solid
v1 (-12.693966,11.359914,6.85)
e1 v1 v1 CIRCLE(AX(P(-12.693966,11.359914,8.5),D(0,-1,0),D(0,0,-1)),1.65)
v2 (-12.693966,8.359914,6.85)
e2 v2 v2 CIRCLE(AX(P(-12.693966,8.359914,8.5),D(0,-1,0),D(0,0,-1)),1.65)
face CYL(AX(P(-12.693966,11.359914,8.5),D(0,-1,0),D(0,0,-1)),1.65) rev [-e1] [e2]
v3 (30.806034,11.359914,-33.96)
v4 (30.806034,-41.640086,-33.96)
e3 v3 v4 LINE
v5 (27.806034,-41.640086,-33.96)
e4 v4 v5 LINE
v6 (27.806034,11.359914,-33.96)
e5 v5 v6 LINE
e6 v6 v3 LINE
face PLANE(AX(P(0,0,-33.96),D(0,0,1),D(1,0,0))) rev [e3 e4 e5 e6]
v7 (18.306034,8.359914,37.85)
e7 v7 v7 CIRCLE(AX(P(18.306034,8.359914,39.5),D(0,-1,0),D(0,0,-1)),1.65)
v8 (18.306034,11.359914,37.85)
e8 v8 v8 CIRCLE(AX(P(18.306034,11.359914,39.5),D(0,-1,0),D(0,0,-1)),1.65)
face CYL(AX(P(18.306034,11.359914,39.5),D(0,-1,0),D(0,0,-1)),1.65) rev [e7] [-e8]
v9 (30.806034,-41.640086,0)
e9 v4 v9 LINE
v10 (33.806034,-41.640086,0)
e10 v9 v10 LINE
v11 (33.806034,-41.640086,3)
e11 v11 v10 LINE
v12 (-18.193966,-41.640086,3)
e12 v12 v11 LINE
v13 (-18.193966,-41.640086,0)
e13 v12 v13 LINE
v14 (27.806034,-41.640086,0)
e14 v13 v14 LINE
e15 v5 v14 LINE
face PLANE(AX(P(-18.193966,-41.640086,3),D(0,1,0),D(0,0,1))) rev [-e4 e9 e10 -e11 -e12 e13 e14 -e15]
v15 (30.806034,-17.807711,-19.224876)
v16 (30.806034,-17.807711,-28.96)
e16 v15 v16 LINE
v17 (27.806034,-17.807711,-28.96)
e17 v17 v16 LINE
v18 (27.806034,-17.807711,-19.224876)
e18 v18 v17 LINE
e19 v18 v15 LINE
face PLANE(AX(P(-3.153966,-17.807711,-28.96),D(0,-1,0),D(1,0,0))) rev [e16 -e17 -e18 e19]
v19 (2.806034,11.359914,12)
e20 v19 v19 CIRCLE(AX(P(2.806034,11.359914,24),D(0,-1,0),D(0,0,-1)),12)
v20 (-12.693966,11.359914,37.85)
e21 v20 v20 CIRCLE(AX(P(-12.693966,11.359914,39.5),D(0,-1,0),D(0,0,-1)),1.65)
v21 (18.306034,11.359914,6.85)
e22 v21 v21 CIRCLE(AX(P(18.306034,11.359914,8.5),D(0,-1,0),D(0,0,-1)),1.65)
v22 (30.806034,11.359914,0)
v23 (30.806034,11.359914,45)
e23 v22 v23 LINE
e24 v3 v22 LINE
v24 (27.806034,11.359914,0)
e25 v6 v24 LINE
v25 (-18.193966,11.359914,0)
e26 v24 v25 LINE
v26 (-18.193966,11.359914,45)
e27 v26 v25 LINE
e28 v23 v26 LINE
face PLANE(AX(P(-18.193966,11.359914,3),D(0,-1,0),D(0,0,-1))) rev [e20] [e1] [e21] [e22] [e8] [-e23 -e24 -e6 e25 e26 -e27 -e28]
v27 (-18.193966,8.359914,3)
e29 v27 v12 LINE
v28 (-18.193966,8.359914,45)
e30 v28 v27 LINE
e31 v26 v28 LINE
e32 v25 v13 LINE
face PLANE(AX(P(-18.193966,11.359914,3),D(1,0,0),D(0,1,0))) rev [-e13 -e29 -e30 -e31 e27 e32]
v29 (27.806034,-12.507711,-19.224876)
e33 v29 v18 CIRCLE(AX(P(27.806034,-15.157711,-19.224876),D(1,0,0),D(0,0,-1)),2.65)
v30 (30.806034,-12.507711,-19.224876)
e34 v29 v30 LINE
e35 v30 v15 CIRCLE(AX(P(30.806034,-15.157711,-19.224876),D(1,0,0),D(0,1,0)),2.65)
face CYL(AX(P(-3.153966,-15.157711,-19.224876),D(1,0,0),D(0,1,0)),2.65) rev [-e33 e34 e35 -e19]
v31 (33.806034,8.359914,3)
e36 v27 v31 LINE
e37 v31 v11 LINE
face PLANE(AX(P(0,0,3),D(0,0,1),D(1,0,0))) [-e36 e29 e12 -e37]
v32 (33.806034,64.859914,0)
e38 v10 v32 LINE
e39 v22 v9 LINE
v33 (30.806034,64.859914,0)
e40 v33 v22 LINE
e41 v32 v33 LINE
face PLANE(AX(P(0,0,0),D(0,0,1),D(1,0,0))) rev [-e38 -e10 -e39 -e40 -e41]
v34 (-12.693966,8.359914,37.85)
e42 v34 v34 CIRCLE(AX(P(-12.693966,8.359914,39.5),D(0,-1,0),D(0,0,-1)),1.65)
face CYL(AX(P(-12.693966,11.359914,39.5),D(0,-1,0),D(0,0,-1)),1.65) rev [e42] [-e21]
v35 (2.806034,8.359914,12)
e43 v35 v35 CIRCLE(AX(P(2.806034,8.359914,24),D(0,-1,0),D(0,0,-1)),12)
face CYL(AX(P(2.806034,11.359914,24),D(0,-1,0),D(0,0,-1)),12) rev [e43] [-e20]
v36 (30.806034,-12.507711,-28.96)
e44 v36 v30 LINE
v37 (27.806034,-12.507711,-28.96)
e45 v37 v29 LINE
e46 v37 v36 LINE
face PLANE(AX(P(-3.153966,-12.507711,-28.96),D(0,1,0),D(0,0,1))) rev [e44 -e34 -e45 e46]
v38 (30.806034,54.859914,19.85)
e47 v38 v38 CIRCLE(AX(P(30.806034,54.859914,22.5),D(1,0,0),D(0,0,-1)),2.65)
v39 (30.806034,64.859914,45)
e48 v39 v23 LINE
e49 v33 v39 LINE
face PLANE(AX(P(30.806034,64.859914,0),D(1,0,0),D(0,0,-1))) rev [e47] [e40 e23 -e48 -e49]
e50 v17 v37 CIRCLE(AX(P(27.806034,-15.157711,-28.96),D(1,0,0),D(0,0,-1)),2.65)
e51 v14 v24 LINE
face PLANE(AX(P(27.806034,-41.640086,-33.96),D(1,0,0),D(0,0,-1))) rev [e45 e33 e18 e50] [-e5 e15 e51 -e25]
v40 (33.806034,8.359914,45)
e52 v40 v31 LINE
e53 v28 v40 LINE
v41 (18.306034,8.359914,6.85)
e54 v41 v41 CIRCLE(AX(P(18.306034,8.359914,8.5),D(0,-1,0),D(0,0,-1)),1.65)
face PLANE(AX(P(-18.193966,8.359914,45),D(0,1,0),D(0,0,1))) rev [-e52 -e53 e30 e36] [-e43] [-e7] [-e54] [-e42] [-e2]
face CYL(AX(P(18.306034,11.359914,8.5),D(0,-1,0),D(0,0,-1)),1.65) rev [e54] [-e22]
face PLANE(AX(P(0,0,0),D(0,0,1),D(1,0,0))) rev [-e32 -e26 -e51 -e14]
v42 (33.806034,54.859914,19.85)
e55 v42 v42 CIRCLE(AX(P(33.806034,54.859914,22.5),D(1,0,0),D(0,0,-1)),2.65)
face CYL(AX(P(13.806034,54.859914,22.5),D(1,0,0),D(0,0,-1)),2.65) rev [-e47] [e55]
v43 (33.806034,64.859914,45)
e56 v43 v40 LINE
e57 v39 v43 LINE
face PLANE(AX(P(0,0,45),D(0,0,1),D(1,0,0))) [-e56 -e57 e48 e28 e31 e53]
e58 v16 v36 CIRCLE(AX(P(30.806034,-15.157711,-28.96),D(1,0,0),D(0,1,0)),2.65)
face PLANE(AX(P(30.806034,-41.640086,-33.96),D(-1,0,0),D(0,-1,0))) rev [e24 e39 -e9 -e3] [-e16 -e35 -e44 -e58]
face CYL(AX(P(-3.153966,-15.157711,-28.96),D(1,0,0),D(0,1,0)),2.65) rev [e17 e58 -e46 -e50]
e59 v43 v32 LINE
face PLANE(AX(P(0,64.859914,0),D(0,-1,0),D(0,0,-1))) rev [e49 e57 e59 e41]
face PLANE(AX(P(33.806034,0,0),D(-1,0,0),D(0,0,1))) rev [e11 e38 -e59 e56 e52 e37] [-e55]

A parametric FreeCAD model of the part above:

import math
import FreeCAD as App
import Part
import Sketcher
Q = App.Units.Quantity

doc = App.newDocument("Part")
body = doc.addObject("PartDesign::Body", "Body")

sketch1 = doc.addObject("Sketcher::SketchObject", "Sketch")
body.addObject(sketch1)
sketch1.AttachmentSupport = (doc.XY_Plane, [""])
sketch1.MapMode = "FlatFace"
sketch1.addGeometry([
    Part.LineSegment(App.Vector(-18, 11, 0), App.Vector(-18, -42, 0)),
    Part.LineSegment(App.Vector(-18, -42, 0), App.Vector(24, -42, 0)),
    Part.LineSegment(App.Vector(24, -42, 0), App.Vector(24, 11, 0)),
    Part.LineSegment(App.Vector(24, 11, 0), App.Vector(-18, 11, 0)),
], False)
sketch1.addConstraint([
    Sketcher.Constraint("Coincident", 0, 2, 1, 1),
    Sketcher.Constraint("Coincident", 1, 2, 2, 1),
    Sketcher.Constraint("Coincident", 2, 2, 3, 1),
    Sketcher.Constraint("Coincident", 3, 2, 0, 1),
    Sketcher.Constraint("Vertical", 0),
    Sketcher.Constraint("Horizontal", 1),
    Sketcher.Constraint("Vertical", 2),
    Sketcher.Constraint("Horizontal", 3),
    Sketcher.Constraint("DistanceX", 1, 1, 1, 2, Q("42 mm")),
    Sketcher.Constraint("DistanceY", 0, 2, 0, 1, Q("53 mm")),
    Sketcher.Constraint("DistanceX", 0, 2, -1, 1, Q("18.193966 mm")),
    Sketcher.Constraint("DistanceY", 0, 2, -1, 1, Q("41.640086 mm")),
])
pad1 = doc.addObject("PartDesign::Pad", "Pad")
body.addObject(pad1)
pad1.Profile = sketch1
pad1.Length = 3

sketch2 = doc.addObject("Sketcher::SketchObject", "Sketch001")
body.addObject(sketch2)
sketch2.AttachmentSupport = (doc.XY_Plane, [""])
sketch2.MapMode = "FlatFace"
sketch2.AttachmentOffset = App.Placement(App.Vector(0, 0, 3), App.Rotation())
sketch2.addGeometry([
    Part.LineSegment(App.Vector(-18.2, 11.4, 0), App.Vector(-18.2, 8.4, 0)),
    Part.LineSegment(App.Vector(-18.2, 8.4, 0), App.Vector(23.8, 8.4, 0)),
    Part.LineSegment(App.Vector(23.8, 8.4, 0), App.Vector(23.8, 11.4, 0)),
    Part.LineSegment(App.Vector(23.8, 11.4, 0), App.Vector(-18.2, 11.4, 0)),
], False)
sketch2.addConstraint([
    Sketcher.Constraint("Coincident", 0, 2, 1, 1),
    Sketcher.Constraint("Coincident", 1, 2, 2, 1),
    Sketcher.Constraint("Coincident", 2, 2, 3, 1),
    Sketcher.Constraint("Coincident", 3, 2, 0, 1),
    Sketcher.Constraint("Vertical", 0),
    Sketcher.Constraint("Horizontal", 1),
    Sketcher.Constraint("Vertical", 2),
    Sketcher.Constraint("Horizontal", 3),
    Sketcher.Constraint("DistanceX", 1, 1, 1, 2, Q("42 mm")),
    Sketcher.Constraint("DistanceY", 0, 2, 0, 1, Q("3 mm")),
    Sketcher.Constraint("DistanceX", 0, 2, -1, 1, Q("18.193966 mm")),
    Sketcher.Constraint("DistanceY", -1, 1, 0, 2, Q("8.359914 mm")),
])
pad2 = doc.addObject("PartDesign::Pad", "Pad001")
body.addObject(pad2)
pad2.Profile = sketch2
pad2.Length = 42

sketch3 = doc.addObject("Sketcher::SketchObject", "Sketch002")
body.addObject(sketch3)
sketch3.AttachmentSupport = (doc.XZ_Plane, [""])
sketch3.MapMode = "FlatFace"
sketch3.AttachmentOffset = App.Placement(App.Vector(0, 0, -8.359914), App.Rotation())
sketch3.addGeometry([
    Part.Circle(App.Vector(2.8, 24, 0), App.Vector(0, 0, 1), 12),
    Part.Circle(App.Vector(18.3, 39.5, 0), App.Vector(0, 0, 1), 1.6),
    Part.Circle(App.Vector(18.3, 8.5, 0), App.Vector(0, 0, 1), 1.6),
    Part.Circle(App.Vector(-12.7, 8.5, 0), App.Vector(0, 0, 1), 1.6),
    Part.Circle(App.Vector(-12.7, 39.5, 0), App.Vector(0, 0, 1), 1.6),
], False)
sketch3.addConstraint([
    Sketcher.Constraint("Equal", 1, 2),
    Sketcher.Constraint("Equal", 2, 3),
    Sketcher.Constraint("Equal", 3, 4),
    Sketcher.Constraint("Horizontal", 2, 3, 3, 3),
    Sketcher.Constraint("Horizontal", 1, 3, 4, 3),
    Sketcher.Constraint("Vertical", 1, 3, 2, 3),
    Sketcher.Constraint("Vertical", 3, 3, 4, 3),
    Sketcher.Constraint("Diameter", 0, Q("24 mm")),
    Sketcher.Constraint("Diameter", 1, Q("3.3 mm")),
    Sketcher.Constraint("DistanceY", -1, 1, 0, 3, Q("24 mm")),
    Sketcher.Constraint("DistanceY", 2, 3, 1, 3, Q("31 mm")),
    Sketcher.Constraint("DistanceX", 3, 3, 2, 3, Q("31 mm")),
    Sketcher.Constraint("DistanceY", -1, 1, 1, 3, Q("39.5 mm")),
    Sketcher.Constraint("DistanceX", 0, 3, 1, 3, Q("15.5 mm")),
    Sketcher.Constraint("DistanceX", -1, 1, 0, 3, Q("2.806034 mm")),
])
pocket1 = doc.addObject("PartDesign::Pocket", "Pocket")
body.addObject(pocket1)
pocket1.Profile = sketch3
pocket1.Type = "ThroughAll"

sketch4 = doc.addObject("Sketcher::SketchObject", "Sketch003")
body.addObject(sketch4)
sketch4.AttachmentSupport = (doc.YZ_Plane, [""])
sketch4.MapMode = "FlatFace"
sketch4.AttachmentOffset = App.Placement(App.Vector(0, 0, 23.806034), App.Rotation())
sketch4.addGeometry([
    Part.LineSegment(App.Vector(8.4, 45, 0), App.Vector(8.4, 3, 0)),
    Part.LineSegment(App.Vector(8.4, 3, 0), App.Vector(-41.6, 3, 0)),
    Part.LineSegment(App.Vector(-41.6, 3, 0), App.Vector(-41.6, 0, 0)),
    Part.LineSegment(App.Vector(-41.6, 0, 0), App.Vector(11.4, 0, 0)),
    Part.LineSegment(App.Vector(11.4, 0, 0), App.Vector(11.4, 45, 0)),
    Part.LineSegment(App.Vector(11.4, 45, 0), App.Vector(8.4, 45, 0)),
], False)
sketch4.addConstraint([
    Sketcher.Constraint("Coincident", 0, 2, 1, 1),
    Sketcher.Constraint("Coincident", 1, 2, 2, 1),
    Sketcher.Constraint("Coincident", 2, 2, 3, 1),
    Sketcher.Constraint("Coincident", 3, 2, 4, 1),
    Sketcher.Constraint("Coincident", 4, 2, 5, 1),
    Sketcher.Constraint("Coincident", 5, 2, 0, 1),
    Sketcher.Constraint("Vertical", 0),
    Sketcher.Constraint("Horizontal", 1),
    Sketcher.Constraint("Vertical", 2),
    Sketcher.Constraint("Horizontal", 3),
    Sketcher.Constraint("Vertical", 4),
    Sketcher.Constraint("Horizontal", 5),
    Sketcher.Constraint("PointOnObject", 2, 2, -1),
    Sketcher.Constraint("Equal", 5, 2),
    Sketcher.Constraint("DistanceX", 1, 2, 1, 1, Q("50 mm")),
    Sketcher.Constraint("DistanceX", 3, 1, 3, 2, Q("53 mm")),
    Sketcher.Constraint("DistanceY", 0, 2, 0, 1, Q("42 mm")),
    Sketcher.Constraint("DistanceX", -1, 1, 0, 2, Q("8.359914 mm")),
])
pad3 = doc.addObject("PartDesign::Pad", "Pad002")
body.addObject(pad3)
pad3.Profile = sketch4
pad3.Length = 10

sketch5 = doc.addObject("Sketcher::SketchObject", "Sketch004")
body.addObject(sketch5)
sketch5.AttachmentSupport = (doc.XZ_Plane, [""])
sketch5.MapMode = "FlatFace"
sketch5.AttachmentOffset = App.Placement(App.Vector(0, 0, -11.359914), App.Rotation())
sketch5.addGeometry([
    Part.LineSegment(App.Vector(30.8, 0, 0), App.Vector(30.8, 45, 0)),
    Part.LineSegment(App.Vector(30.8, 45, 0), App.Vector(33.8, 45, 0)),
    Part.LineSegment(App.Vector(33.8, 45, 0), App.Vector(33.8, 0, 0)),
    Part.LineSegment(App.Vector(33.8, 0, 0), App.Vector(30.8, 0, 0)),
], False)
sketch5.addConstraint([
    Sketcher.Constraint("Coincident", 0, 2, 1, 1),
    Sketcher.Constraint("Coincident", 1, 2, 2, 1),
    Sketcher.Constraint("Coincident", 2, 2, 3, 1),
    Sketcher.Constraint("Coincident", 3, 2, 0, 1),
    Sketcher.Constraint("Vertical", 0),
    Sketcher.Constraint("Horizontal", 1),
    Sketcher.Constraint("Vertical", 2),
    Sketcher.Constraint("Horizontal", 3),
    Sketcher.Constraint("PointOnObject", 2, 2, -1),
    Sketcher.Constraint("DistanceX", 1, 1, 1, 2, Q("3 mm")),
    Sketcher.Constraint("DistanceY", 0, 1, 0, 2, Q("45 mm")),
    Sketcher.Constraint("DistanceX", -1, 1, 0, 2, Q("30.806034 mm")),
])
pad4 = doc.addObject("PartDesign::Pad", "Pad003")
body.addObject(pad4)
pad4.Profile = sketch5
pad4.Length = 53.5
pad4.Reversed = True

sketch6 = doc.addObject("Sketcher::SketchObject", "Sketch005")
body.addObject(sketch6)
sketch6.AttachmentSupport = (doc.YZ_Plane, [""])
sketch6.MapMode = "FlatFace"
sketch6.AttachmentOffset = App.Placement(App.Vector(0, 0, 33.806034), App.Rotation())
sketch6.addGeometry(Part.Circle(App.Vector(54.9, 22.5, 0), App.Vector(0, 0, 1), 2.6), False)
sketch6.addConstraint([
    Sketcher.Constraint("Diameter", 0, Q("5.3 mm")),
    Sketcher.Constraint("DistanceY", -1, 1, 0, 3, Q("22.5 mm")),
    Sketcher.Constraint("DistanceX", -1, 1, 0, 3, Q("54.859914 mm")),
])
pocket2 = doc.addObject("PartDesign::Pocket", "Pocket001")
body.addObject(pocket2)
pocket2.Profile = sketch6
pocket2.Length = 20

sketch7 = doc.addObject("Sketcher::SketchObject", "Sketch006")
body.addObject(sketch7)
sketch7.AttachmentSupport = (doc.XY_Plane, [""])
sketch7.MapMode = "FlatFace"
sketch7.addGeometry([
    Part.LineSegment(App.Vector(30.8, 11.4, 0), App.Vector(30.8, -41.6, 0)),
    Part.LineSegment(App.Vector(30.8, -41.6, 0), App.Vector(27.8, -41.6, 0)),
    Part.LineSegment(App.Vector(27.8, -41.6, 0), App.Vector(27.8, 11.4, 0)),
    Part.LineSegment(App.Vector(27.8, 11.4, 0), App.Vector(30.8, 11.4, 0)),
], False)
sketch7.addConstraint([
    Sketcher.Constraint("Coincident", 0, 2, 1, 1),
    Sketcher.Constraint("Coincident", 1, 2, 2, 1),
    Sketcher.Constraint("Coincident", 2, 2, 3, 1),
    Sketcher.Constraint("Coincident", 3, 2, 0, 1),
    Sketcher.Constraint("Vertical", 0),
    Sketcher.Constraint("Horizontal", 1),
    Sketcher.Constraint("Vertical", 2),
    Sketcher.Constraint("Horizontal", 3),
    Sketcher.Constraint("DistanceX", 1, 2, 1, 1, Q("3 mm")),
    Sketcher.Constraint("DistanceY", 0, 2, 0, 1, Q("53 mm")),
    Sketcher.Constraint("DistanceX", -1, 1, 0, 2, Q("30.806034 mm")),
    Sketcher.Constraint("DistanceY", 0, 2, -1, 1, Q("41.640086 mm")),
])
pad5 = doc.addObject("PartDesign::Pad", "Pad004")
body.addObject(pad5)
pad5.Profile = sketch7
pad5.Length = 33.96
pad5.Reversed = True

sketch8 = doc.addObject("Sketcher::SketchObject", "Sketch007")
body.addObject(sketch8)
sketch8.AttachmentSupport = (doc.YZ_Plane, [""])
sketch8.MapMode = "FlatFace"
sketch8.AttachmentOffset = App.Placement(App.Vector(0, 0, 30.806034), App.Rotation())
sketch8.addGeometry([
    Part.LineSegment(App.Vector(-17.8, -19.2, 0), App.Vector(-17.8, -29, 0)),
    Part.ArcOfCircle(Part.Circle(App.Vector(-15.2, -29, 0), App.Vector(0, 0, 1), 2.6), math.radians(180), math.radians(360)),
    Part.LineSegment(App.Vector(-12.5, -29, 0), App.Vector(-12.5, -19.2, 0)),
    Part.ArcOfCircle(Part.Circle(App.Vector(-15.2, -19.2, 0), App.Vector(0, 0, 1), 2.6), math.radians(0), math.radians(180)),
], False)
sketch8.addConstraint([
    Sketcher.Constraint("Tangent", 0, 2, 1, 1),
    Sketcher.Constraint("Tangent", 1, 2, 2, 1),
    Sketcher.Constraint("Tangent", 2, 2, 3, 1),
    Sketcher.Constraint("Tangent", 3, 2, 0, 1),
    Sketcher.Constraint("Vertical", 0),
    Sketcher.Constraint("Vertical", 2),
    Sketcher.Constraint("Radius", 1, Q("2.65 mm")),
    Sketcher.Constraint("DistanceY", 1, 3, -1, 1, Q("28.96 mm")),
    Sketcher.Constraint("DistanceY", 0, 2, 0, 1, Q("9.735124 mm")),
    Sketcher.Constraint("DistanceX", 1, 3, -1, 1, Q("15.157711 mm")),
])
pocket3 = doc.addObject("PartDesign::Pocket", "Pocket002")
body.addObject(pocket3)
pocket3.Profile = sketch8
pocket3.Length = 33.96

doc.recompute()
